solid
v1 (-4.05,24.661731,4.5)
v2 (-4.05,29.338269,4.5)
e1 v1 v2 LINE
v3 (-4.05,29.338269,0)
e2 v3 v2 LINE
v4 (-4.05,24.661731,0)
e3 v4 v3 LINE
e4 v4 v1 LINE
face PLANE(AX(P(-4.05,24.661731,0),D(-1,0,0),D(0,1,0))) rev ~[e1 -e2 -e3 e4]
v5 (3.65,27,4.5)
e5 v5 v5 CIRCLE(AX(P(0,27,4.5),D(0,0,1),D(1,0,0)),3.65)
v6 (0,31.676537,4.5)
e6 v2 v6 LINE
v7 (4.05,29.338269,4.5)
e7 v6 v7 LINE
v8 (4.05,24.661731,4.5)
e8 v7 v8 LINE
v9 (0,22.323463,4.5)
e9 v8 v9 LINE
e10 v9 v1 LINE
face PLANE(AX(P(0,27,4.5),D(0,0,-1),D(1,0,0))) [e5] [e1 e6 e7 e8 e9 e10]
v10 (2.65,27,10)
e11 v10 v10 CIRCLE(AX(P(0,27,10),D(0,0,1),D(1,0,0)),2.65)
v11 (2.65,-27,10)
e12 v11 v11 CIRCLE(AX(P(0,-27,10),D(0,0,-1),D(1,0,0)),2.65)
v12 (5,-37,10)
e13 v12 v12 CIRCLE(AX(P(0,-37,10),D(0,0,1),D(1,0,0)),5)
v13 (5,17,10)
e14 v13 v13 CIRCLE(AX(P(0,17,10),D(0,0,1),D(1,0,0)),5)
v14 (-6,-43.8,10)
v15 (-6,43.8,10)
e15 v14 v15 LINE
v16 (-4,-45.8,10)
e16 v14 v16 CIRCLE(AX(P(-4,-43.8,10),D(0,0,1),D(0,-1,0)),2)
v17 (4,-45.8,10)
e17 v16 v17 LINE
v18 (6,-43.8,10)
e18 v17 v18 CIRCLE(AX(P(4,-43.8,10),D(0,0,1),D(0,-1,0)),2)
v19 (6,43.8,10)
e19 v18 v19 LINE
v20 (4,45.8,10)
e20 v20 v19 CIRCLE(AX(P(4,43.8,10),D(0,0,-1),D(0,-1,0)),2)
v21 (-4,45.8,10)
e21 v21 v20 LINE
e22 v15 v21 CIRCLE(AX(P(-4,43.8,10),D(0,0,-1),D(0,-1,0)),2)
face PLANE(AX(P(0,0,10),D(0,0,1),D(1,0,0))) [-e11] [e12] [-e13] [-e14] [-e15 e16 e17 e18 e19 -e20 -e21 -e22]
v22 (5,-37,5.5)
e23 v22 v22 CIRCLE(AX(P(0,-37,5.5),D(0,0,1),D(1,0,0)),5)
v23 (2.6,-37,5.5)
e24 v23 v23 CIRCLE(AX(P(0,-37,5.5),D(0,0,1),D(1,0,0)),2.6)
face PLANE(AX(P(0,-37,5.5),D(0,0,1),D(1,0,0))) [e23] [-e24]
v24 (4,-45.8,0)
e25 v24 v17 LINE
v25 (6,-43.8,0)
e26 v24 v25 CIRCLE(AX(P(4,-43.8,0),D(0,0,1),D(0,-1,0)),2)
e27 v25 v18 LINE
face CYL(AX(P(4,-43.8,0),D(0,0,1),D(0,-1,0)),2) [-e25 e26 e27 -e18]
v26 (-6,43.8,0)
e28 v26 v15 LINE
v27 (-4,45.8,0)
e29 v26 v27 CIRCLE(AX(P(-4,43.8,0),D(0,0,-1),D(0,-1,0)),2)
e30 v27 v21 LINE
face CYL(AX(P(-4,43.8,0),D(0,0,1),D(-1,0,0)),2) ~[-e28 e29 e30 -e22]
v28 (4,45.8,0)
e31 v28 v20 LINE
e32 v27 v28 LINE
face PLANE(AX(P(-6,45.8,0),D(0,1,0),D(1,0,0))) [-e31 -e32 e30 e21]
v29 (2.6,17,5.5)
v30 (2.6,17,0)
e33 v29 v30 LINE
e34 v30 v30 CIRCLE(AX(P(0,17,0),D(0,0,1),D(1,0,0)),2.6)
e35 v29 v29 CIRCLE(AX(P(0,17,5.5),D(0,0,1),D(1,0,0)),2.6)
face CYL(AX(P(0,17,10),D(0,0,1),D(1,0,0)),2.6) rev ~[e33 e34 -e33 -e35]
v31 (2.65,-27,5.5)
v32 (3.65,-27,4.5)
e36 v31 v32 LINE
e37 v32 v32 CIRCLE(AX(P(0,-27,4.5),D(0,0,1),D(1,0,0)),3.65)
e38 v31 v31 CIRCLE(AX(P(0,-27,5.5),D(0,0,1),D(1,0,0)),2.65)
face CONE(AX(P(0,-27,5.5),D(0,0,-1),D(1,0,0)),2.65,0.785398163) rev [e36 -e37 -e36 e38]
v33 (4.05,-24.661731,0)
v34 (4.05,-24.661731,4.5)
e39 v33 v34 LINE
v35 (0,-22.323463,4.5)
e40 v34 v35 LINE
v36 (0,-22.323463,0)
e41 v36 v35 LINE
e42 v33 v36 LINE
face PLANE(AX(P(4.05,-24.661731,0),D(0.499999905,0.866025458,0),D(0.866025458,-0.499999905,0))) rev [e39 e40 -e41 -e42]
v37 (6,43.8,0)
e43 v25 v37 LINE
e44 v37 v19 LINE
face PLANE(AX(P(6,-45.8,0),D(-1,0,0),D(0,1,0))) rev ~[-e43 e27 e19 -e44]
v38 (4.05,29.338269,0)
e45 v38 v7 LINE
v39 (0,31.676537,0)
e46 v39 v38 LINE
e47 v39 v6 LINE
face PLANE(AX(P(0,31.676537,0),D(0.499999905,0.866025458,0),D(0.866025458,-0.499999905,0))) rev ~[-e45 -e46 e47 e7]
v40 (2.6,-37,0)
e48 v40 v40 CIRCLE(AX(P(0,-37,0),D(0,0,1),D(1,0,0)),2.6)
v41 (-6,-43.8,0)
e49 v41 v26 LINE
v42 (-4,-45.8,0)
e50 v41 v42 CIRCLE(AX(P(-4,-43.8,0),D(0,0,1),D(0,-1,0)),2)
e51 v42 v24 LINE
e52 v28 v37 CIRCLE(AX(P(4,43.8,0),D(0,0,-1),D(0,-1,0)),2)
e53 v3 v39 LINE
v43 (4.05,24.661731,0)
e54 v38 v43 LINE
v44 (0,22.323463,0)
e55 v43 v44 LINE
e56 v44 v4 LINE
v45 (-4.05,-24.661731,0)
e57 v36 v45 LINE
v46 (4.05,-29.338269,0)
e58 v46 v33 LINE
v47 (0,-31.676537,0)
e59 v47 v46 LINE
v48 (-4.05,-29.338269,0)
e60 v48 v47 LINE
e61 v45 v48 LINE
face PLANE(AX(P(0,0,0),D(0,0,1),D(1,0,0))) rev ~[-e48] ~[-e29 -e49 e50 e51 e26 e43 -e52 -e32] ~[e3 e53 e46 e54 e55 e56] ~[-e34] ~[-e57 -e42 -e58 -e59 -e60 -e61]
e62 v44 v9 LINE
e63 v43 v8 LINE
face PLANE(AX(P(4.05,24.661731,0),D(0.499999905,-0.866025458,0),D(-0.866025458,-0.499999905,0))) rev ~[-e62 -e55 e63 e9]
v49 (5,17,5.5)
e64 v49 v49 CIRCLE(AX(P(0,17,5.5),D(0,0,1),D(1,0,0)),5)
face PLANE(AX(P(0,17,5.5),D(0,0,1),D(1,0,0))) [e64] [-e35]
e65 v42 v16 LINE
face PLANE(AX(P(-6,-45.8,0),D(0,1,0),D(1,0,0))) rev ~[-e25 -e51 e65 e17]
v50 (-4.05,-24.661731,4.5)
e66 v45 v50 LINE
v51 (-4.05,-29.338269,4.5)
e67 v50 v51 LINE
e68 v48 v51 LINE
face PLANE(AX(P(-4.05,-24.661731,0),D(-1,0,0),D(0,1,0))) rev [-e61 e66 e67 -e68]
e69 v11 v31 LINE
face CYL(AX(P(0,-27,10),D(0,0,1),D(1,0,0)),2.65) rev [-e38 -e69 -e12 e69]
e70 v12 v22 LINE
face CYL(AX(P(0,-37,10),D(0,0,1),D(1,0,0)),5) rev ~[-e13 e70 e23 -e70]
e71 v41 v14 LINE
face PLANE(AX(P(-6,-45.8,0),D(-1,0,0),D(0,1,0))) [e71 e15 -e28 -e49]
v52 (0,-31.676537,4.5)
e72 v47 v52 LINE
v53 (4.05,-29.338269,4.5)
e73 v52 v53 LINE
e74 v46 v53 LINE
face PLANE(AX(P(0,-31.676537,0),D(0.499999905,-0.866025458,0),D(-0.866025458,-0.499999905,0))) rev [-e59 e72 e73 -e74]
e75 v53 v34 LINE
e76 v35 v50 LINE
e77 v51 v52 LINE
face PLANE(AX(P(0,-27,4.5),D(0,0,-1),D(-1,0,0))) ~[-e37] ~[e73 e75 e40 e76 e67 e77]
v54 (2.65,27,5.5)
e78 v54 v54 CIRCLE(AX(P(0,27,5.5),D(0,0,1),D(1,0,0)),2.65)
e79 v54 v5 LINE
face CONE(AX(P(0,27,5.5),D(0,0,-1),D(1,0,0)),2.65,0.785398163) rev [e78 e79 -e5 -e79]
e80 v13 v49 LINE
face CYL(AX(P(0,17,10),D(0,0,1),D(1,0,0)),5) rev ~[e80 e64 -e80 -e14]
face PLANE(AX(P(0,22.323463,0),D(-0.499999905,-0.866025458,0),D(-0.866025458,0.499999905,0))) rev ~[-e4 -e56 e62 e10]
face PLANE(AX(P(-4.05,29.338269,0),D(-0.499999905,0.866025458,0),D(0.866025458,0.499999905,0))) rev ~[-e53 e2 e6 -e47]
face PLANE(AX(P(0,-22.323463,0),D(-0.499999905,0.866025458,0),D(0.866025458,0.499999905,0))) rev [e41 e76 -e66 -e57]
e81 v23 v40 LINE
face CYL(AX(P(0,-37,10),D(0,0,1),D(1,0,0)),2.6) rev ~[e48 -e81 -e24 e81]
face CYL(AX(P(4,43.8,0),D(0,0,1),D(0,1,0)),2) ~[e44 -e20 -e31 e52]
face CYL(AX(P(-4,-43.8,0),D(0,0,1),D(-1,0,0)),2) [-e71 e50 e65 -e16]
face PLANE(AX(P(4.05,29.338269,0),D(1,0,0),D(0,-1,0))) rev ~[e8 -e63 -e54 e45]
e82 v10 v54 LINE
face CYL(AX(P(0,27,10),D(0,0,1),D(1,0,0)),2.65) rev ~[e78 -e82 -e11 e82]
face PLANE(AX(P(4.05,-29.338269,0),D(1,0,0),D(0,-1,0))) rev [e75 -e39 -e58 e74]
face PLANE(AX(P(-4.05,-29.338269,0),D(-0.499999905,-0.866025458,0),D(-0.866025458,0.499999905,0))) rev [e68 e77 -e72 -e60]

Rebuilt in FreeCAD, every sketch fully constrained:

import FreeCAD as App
import Part
import Sketcher
Q = App.Units.Quantity


def edges_at(feature, points):
    """Names of the edges that pass closest to the given points."""
    edges = feature.Shape.Edges
    near = lambda p: min(range(len(edges)), key=lambda i: edges[i].distToShape(Part.Vertex(*p))[0])
    return sorted({f"Edge{near(p) + 1}" for p in points})

doc = App.newDocument("Part")
body = doc.addObject("PartDesign::Body", "Body")

# Sketch on XY plane
sketch1 = doc.addObject("Sketcher::SketchObject", "Sketch")
body.addObject(sketch1)
sketch1.AttachmentSupport = (doc.XY_Plane, [""])
sketch1.MapMode = "FlatFace"
sketch1.addGeometry([
    Part.LineSegment(App.Vector(-6, 46, 0), App.Vector(-6, -46, 0)),
    Part.LineSegment(App.Vector(-6, -46, 0), App.Vector(6, -46, 0)),
    Part.LineSegment(App.Vector(6, -46, 0), App.Vector(6, 46, 0)),
    Part.LineSegment(App.Vector(6, 46, 0), App.Vector(-6, 46, 0)),
], False)
sketch1.addConstraint([
    Sketcher.Constraint("Coincident", 0, 2, 1, 1),
    Sketcher.Constraint("Coincident", 1, 2, 2, 1),
    Sketcher.Constraint("Coincident", 2, 2, 3, 1),
    Sketcher.Constraint("Coincident", 3, 2, 0, 1),
    Sketcher.Constraint("Vertical", 0),
    Sketcher.Constraint("Horizontal", 1),
    Sketcher.Constraint("Vertical", 2),
    Sketcher.Constraint("Horizontal", 3),
    Sketcher.Constraint("Symmetric", 0, 2, 2, 2, -1, 1),
    Sketcher.Constraint("DistanceX", 1, 1, 1, 2, 12.0),
    Sketcher.Constraint("DistanceY", 0, 2, 0, 1, 91.6),
])
pad1 = doc.addObject("PartDesign::Pad", "Pad")
body.addObject(pad1)
pad1.Profile = sketch1
pad1.Length = 10

# Sketch on XY plane
sketch2 = doc.addObject("Sketcher::SketchObject", "Sketch001")
body.addObject(sketch2)
sketch2.AttachmentSupport = (doc.XY_Plane, [""])
sketch2.MapMode = "FlatFace"
sketch2.AttachmentOffset = App.Placement(App.Vector(0, 0, 10), App.Rotation())
sketch2.addGeometry(Part.Circle(App.Vector(0, 27, 0), App.Vector(0, 0, 1), 2.6), False)
sketch2.addConstraint([
    Sketcher.Constraint("PointOnObject", 0, 3, -2),
    Sketcher.Constraint("Diameter", 0, 5.3),
    Sketcher.Constraint("DistanceY", -1, 1, 0, 3, 27.0),
])
pocket1 = doc.addObject("PartDesign::Pocket", "Pocket")
body.addObject(pocket1)
pocket1.Profile = sketch2
pocket1.Type = "ThroughAll"

# Sketch on XY plane
sketch3 = doc.addObject("Sketcher::SketchObject", "Sketch002")
body.addObject(sketch3)
sketch3.AttachmentSupport = (doc.XY_Plane, [""])
sketch3.MapMode = "FlatFace"
sketch3.addGeometry([
    Part.LineSegment(App.Vector(0, 22.3, 0), App.Vector(-4, 24.7, 0)),  # 0
    Part.LineSegment(App.Vector(-4, 24.7, 0), App.Vector(-4, 29.3, 0)),  # 1
    Part.LineSegment(App.Vector(-4, 29.3, 0), App.Vector(0, 31.7, 0)),  # 2
    Part.LineSegment(App.Vector(0, 31.7, 0), App.Vector(4, 29.3, 0)),  # 3
    Part.LineSegment(App.Vector(4, 29.3, 0), App.Vector(4, 24.7, 0)),  # 4
    Part.LineSegment(App.Vector(4, 24.7, 0), App.Vector(0, 22.3, 0)),  # 5
], False)
sketch3.addConstraint([
    Sketcher.Constraint("Coincident", 0, 2, 1, 1),
    Sketcher.Constraint("Coincident", 1, 2, 2, 1),
    Sketcher.Constraint("Coincident", 2, 2, 3, 1),
    Sketcher.Constraint("Coincident", 3, 2, 4, 1),
    Sketcher.Constraint("Coincident", 4, 2, 5, 1),
    Sketcher.Constraint("Coincident", 5, 2, 0, 1),
    Sketcher.Constraint("Vertical", 1),
    Sketcher.Constraint("Vertical", 4),
    Sketcher.Constraint("Symmetric", 1, 2, 3, 2, -2),
    Sketcher.Constraint("PointOnObject", 2, 2, -2),
    Sketcher.Constraint("PointOnObject", 5, 2, -2),
    Sketcher.Constraint("Parallel", 0, 3),
    Sketcher.Constraint("Parallel", 2, 5),
    Sketcher.Constraint("Angle", 0, Q("150.000006 deg")),
    Sketcher.Constraint("DistanceX", 1, 2, 3, 2, 8.1),
    Sketcher.Constraint("DistanceY", 1, 1, 1, 2, 4.676538),
    Sketcher.Constraint("DistanceY", -1, 1, 0, 2, 24.661731),
])
pocket2 = doc.addObject("PartDesign::Pocket", "Pocket001")
body.addObject(pocket2)
pocket2.Profile = sketch3
pocket2.Length = 4.5
pocket2.Reversed = True
doc.recompute()

mirrored = doc.addObject("PartDesign::Mirrored", "Mirrored")
body.addObject(mirrored)
mirrored.Originals = [pocket2, pocket1]
mirrored.MirrorPlane = (doc.XZ_Plane, [""])
body.Tip = mirrored

# Sketch on XY plane
sketch4 = doc.addObject("Sketcher::SketchObject", "Sketch003")
body.addObject(sketch4)
sketch4.AttachmentSupport = (doc.XY_Plane, [""])
sketch4.MapMode = "FlatFace"
sketch4.AttachmentOffset = App.Placement(App.Vector(0, 0, 10), App.Rotation())
sketch4.addGeometry([
    Part.Circle(App.Vector(0, 17, 0), App.Vector(0, 0, 1), 5),
    Part.Circle(App.Vector(0, -37, 0), App.Vector(0, 0, 1), 5),
], False)
sketch4.addConstraint([
    Sketcher.Constraint("Equal", 0, 1),
    Sketcher.Constraint("PointOnObject", 0, 3, -2),
    Sketcher.Constraint("PointOnObject", 1, 3, -2),
    Sketcher.Constraint("Diameter", 0, 10.0),
    Sketcher.Constraint("DistanceY", -1, 1, 0, 3, 17.0),
    Sketcher.Constraint("DistanceY", 1, 3, -1, 1, 37.0),
])
pocket3 = doc.addObject("PartDesign::Pocket", "Pocket002")
body.addObject(pocket3)
pocket3.Profile = sketch4
pocket3.Length = 4.5

# Sketch on XY plane
sketch5 = doc.addObject("Sketcher::SketchObject", "Sketch004")
body.addObject(sketch5)
sketch5.AttachmentSupport = (doc.XY_Plane, [""])
sketch5.MapMode = "FlatFace"
sketch5.AttachmentOffset = App.Placement(App.Vector(0, 0, 10), App.Rotation())
sketch5.addGeometry([
    Part.Circle(App.Vector(0, 17, 0), App.Vector(0, 0, 1), 2.6),
    Part.Circle(App.Vector(0, -37, 0), App.Vector(0, 0, 1), 2.6),
], False)
sketch5.addConstraint([
    Sketcher.Constraint("Equal", 0, 1),
    Sketcher.Constraint("PointOnObject", 0, 3, -2),
    Sketcher.Constraint("PointOnObject", 1, 3, -2),
    Sketcher.Constraint("Diameter", 0, 5.2),
    Sketcher.Constraint("DistanceY", -1, 1, 0, 3, 17.0),
    Sketcher.Constraint("DistanceY", 1, 3, -1, 1, 37.0),
])
pocket4 = doc.addObject("PartDesign::Pocket", "Pocket003")
body.addObject(pocket4)
pocket4.Profile = sketch5
pocket4.Type = "ThroughAll"
doc.recompute()

fillet = doc.addObject("PartDesign::Fillet", "Fillet")
body.addObject(fillet)
fillet.Base = (pocket4, edges_at(pocket4, [
    (-6, 45.8, 5),
    (-6, -45.8, 5),
    (6, -45.8, 5),
    (6, 45.8, 5),
]))
fillet.Radius = 2
doc.recompute()

chamfer = doc.addObject("PartDesign::Chamfer", "Chamfer")
body.addObject(chamfer)
chamfer.Base = (fillet, edges_at(fillet, [(-2.65, 27, 4.5), (-2.65, -27, 4.5)]))
chamfer.Size = 1

doc.recompute()
